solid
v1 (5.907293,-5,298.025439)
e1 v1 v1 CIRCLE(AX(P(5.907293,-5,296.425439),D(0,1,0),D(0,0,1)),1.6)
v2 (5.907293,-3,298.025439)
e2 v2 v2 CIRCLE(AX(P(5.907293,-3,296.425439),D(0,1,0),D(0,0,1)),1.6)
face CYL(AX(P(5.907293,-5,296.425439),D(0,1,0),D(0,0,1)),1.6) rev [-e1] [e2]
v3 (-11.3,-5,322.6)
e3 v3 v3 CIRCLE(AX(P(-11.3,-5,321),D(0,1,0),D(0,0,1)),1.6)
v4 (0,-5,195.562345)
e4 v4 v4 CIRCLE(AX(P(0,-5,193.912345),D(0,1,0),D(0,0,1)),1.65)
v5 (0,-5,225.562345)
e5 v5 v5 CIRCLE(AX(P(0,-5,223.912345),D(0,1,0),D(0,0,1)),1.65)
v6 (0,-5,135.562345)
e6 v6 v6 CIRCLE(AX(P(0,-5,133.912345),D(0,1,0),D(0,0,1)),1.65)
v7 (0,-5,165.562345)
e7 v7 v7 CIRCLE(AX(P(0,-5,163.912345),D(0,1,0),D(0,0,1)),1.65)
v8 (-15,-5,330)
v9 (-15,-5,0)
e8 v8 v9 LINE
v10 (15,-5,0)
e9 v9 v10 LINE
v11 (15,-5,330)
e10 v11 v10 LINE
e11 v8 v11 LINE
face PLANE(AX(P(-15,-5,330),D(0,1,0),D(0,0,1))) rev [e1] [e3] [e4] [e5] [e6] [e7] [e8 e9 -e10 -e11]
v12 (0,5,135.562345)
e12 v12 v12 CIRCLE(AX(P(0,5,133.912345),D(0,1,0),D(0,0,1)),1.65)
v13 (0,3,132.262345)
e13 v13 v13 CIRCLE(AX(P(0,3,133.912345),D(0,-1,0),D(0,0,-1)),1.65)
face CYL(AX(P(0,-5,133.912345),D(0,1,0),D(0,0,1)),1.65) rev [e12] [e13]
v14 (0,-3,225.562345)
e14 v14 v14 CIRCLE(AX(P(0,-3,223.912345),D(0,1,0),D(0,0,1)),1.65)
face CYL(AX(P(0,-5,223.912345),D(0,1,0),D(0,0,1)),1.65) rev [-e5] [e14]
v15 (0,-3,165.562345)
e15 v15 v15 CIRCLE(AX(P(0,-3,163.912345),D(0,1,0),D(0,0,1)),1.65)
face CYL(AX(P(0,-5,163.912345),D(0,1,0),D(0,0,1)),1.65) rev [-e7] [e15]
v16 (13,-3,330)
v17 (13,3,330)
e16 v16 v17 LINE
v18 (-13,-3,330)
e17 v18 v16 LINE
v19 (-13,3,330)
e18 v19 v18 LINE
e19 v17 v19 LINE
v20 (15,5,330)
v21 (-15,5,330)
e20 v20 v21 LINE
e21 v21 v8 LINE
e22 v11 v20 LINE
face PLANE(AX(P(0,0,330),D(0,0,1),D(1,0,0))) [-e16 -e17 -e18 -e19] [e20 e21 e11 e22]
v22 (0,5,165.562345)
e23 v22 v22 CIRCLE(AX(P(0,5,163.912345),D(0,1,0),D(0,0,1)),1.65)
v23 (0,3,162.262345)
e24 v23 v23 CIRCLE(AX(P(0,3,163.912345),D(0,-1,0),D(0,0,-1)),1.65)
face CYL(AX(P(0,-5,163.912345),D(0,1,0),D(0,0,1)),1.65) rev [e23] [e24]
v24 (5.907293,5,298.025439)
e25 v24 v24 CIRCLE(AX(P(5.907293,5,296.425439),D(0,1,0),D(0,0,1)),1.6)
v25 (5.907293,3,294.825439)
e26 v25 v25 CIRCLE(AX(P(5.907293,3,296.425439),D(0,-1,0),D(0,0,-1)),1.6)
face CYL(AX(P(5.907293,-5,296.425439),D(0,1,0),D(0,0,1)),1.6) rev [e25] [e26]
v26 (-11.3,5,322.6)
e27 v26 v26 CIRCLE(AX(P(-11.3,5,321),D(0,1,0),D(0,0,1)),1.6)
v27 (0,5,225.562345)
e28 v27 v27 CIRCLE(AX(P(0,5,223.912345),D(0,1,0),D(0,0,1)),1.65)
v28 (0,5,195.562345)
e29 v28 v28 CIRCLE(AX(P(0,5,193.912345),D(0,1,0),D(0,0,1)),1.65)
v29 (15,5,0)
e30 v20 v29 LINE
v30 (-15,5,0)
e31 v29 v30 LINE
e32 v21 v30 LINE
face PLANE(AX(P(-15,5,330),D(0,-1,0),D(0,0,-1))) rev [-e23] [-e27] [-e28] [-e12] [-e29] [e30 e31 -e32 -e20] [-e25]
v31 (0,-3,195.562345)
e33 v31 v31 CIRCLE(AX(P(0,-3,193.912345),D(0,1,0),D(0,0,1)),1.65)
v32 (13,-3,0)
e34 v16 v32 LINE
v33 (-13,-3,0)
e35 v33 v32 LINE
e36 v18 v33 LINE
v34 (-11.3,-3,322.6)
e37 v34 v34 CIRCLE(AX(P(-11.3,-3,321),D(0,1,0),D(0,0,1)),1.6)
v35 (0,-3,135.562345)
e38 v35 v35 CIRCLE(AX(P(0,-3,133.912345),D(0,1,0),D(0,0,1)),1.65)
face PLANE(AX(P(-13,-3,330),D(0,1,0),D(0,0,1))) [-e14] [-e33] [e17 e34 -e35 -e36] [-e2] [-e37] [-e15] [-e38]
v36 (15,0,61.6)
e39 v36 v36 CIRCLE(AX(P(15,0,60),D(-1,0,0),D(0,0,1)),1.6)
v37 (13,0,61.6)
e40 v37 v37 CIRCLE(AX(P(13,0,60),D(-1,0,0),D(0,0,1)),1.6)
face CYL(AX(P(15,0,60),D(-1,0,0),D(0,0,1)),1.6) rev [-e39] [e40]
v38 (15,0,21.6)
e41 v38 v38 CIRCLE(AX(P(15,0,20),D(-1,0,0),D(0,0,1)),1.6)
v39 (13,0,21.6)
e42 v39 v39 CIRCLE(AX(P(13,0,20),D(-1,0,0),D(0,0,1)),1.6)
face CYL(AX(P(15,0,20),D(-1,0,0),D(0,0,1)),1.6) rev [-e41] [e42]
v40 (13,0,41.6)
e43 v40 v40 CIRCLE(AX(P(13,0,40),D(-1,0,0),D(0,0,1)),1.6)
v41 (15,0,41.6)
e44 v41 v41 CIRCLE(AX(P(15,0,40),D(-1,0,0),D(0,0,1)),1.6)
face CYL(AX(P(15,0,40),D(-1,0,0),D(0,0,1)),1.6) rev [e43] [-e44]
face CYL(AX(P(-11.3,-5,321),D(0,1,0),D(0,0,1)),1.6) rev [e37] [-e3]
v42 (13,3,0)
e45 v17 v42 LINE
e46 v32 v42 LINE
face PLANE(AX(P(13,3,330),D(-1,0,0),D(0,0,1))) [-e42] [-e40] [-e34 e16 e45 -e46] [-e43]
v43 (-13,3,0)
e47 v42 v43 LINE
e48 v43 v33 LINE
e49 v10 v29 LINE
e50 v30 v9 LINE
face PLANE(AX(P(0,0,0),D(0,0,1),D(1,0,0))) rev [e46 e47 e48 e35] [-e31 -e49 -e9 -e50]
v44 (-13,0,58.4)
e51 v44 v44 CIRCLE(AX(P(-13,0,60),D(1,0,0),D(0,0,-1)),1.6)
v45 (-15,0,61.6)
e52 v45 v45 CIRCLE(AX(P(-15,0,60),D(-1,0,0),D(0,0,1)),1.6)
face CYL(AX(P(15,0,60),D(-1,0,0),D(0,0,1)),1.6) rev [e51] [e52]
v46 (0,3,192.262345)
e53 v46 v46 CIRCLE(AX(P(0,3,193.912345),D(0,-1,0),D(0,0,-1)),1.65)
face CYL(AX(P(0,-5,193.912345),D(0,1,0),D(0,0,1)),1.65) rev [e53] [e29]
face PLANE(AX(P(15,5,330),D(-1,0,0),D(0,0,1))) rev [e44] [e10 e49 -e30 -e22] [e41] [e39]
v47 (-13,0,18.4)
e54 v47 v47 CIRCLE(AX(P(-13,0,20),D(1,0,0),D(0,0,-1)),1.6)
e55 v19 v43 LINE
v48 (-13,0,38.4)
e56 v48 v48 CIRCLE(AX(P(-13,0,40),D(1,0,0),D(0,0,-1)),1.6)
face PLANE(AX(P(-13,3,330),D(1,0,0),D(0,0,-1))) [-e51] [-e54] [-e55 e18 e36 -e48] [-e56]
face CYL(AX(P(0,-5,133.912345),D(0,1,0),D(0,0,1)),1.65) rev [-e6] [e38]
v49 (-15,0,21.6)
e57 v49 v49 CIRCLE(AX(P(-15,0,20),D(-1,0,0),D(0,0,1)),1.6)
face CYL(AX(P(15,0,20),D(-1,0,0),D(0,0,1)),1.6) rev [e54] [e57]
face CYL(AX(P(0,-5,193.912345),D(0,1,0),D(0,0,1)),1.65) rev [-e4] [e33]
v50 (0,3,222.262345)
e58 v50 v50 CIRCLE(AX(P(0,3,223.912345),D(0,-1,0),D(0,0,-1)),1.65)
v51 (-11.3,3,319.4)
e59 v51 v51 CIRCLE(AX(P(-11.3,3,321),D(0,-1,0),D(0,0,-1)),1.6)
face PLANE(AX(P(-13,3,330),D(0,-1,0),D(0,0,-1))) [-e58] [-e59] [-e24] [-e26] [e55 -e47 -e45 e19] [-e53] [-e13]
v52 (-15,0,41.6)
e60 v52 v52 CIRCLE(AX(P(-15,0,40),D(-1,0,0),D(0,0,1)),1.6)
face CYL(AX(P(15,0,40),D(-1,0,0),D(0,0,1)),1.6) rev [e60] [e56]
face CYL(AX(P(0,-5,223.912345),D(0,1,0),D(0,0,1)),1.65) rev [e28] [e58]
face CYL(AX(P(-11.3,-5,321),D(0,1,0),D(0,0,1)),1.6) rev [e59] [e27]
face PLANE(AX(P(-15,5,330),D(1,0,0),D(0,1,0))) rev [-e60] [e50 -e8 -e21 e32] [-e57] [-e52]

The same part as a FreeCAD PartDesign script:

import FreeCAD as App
import Part
import Sketcher

V = App.Vector

doc = App.newDocument("Part")
body = doc.addObject("PartDesign::Body", "Body")

sketch1 = doc.addObject("Sketcher::SketchObject", "Sketch")
body.addObject(sketch1)
sketch1.AttachmentSupport = (doc.XY_Plane, [""])
sketch1.MapMode = "FlatFace"
sketch1.addGeometry([
    Part.LineSegment(V(-15, 5, 0), V(-15, -5, 0)),
    Part.LineSegment(V(-15, -5, 0), V(15, -5, 0)),
    Part.LineSegment(V(15, -5, 0), V(15, 5, 0)),
    Part.LineSegment(V(15, 5, 0), V(-15, 5, 0)),
    Part.LineSegment(V(13, -3, 0), V(-13, -3, 0)),
    Part.LineSegment(V(-13, -3, 0), V(-13, 3, 0)),
    Part.LineSegment(V(-13, 3, 0), V(13, 3, 0)),
    Part.LineSegment(V(13, 3, 0), V(13, -3, 0)),
], False)
sketch1.addConstraint([
    Sketcher.Constraint("Coincident", 0, 2, 1, 1),
    Sketcher.Constraint("Coincident", 1, 2, 2, 1),
    Sketcher.Constraint("Coincident", 2, 2, 3, 1),
    Sketcher.Constraint("Coincident", 3, 2, 0, 1),
    Sketcher.Constraint("Coincident", 4, 2, 5, 1),
    Sketcher.Constraint("Coincident", 5, 2, 6, 1),
    Sketcher.Constraint("Coincident", 6, 2, 7, 1),
    Sketcher.Constraint("Coincident", 7, 2, 4, 1),
    Sketcher.Constraint("Vertical", 0),
    Sketcher.Constraint("Horizontal", 1),
    Sketcher.Constraint("Vertical", 2),
    Sketcher.Constraint("Horizontal", 3),
    Sketcher.Constraint("Horizontal", 4),
    Sketcher.Constraint("Vertical", 5),
    Sketcher.Constraint("Horizontal", 6),
    Sketcher.Constraint("Vertical", 7),
    Sketcher.Constraint("Symmetric", 0, 2, 2, 2, -1, 1),
    Sketcher.Constraint("Symmetric", 4, 2, 6, 2, -1, 1),
    Sketcher.Constraint("DistanceX", 1, 1, 1, 2, 30.0),
    Sketcher.Constraint("DistanceX", 4, 2, 4, 1, 26.0),
    Sketcher.Constraint("DistanceY", 0, 2, 0, 1, 10.0),
    Sketcher.Constraint("DistanceY", 5, 1, 5, 2, 6.0),
])
pad1 = doc.addObject("PartDesign::Pad", "Pad")
body.addObject(pad1)
pad1.Profile = sketch1
pad1.Length = 330

sketch2 = doc.addObject("Sketcher::SketchObject", "Sketch001")
body.addObject(sketch2)
sketch2.AttachmentSupport = (doc.XZ_Plane, [""])
sketch2.MapMode = "FlatFace"
sketch2.AttachmentOffset = App.Placement(V(0, 0, -5), App.Rotation())
sketch2.addGeometry(Part.Circle(V(-11.3, 321, 0), V(0, 0, 1), 1.6), False)
sketch2.addConstraint([
    Sketcher.Constraint("Diameter", 0, 3.2),
    Sketcher.Constraint("DistanceY", -1, 1, 0, 3, 321.0),
    Sketcher.Constraint("DistanceX", 0, 3, -1, 1, 11.3),
])
pocket1 = doc.addObject("PartDesign::Pocket", "Pocket")
body.addObject(pocket1)
pocket1.Profile = sketch2
pocket1.Type = "ThroughAll"
pocket1.Reversed = True

sketch3 = doc.addObject("Sketcher::SketchObject", "Sketch002")
body.addObject(sketch3)
sketch3.AttachmentSupport = (doc.XZ_Plane, [""])
sketch3.MapMode = "FlatFace"
sketch3.AttachmentOffset = App.Placement(V(0, 0, -5), App.Rotation())
sketch3.addGeometry([
    Part.Circle(V(5.9, 296.4, 0), V(0, 0, 1), 1.6),
    Part.Circle(V(0, 163.9, 0), V(0, 0, 1), 1.6),
    Part.Circle(V(0, 133.9, 0), V(0, 0, 1), 1.6),
    Part.Circle(V(0, 223.9, 0), V(0, 0, 1), 1.6),
    Part.Circle(V(0, 193.9, 0), V(0, 0, 1), 1.6),
], False)
sketch3.addConstraint([
    Sketcher.Constraint("Equal", 1, 2),
    Sketcher.Constraint("Equal", 2, 3),
    Sketcher.Constraint("Equal", 3, 4),
    Sketcher.Constraint("PointOnObject", 1, 3, -2),
    Sketcher.Constraint("PointOnObject", 2, 3, -2),
    Sketcher.Constraint("PointOnObject", 3, 3, -2),
    Sketcher.Constraint("PointOnObject", 4, 3, -2),
    Sketcher.Constraint("Diameter", 0, 3.2),
    Sketcher.Constraint("Diameter", 1, 3.3),
    Sketcher.Constraint("DistanceY", 2, 3, 1, 3, 30.0),
    Sketcher.Constraint("DistanceY", 1, 3, 3, 3, 60.0),
    Sketcher.Constraint("DistanceY", 1, 3, 4, 3, 30.0),
    Sketcher.Constraint("DistanceY", -1, 1, 0, 3, 296.425439),
    Sketcher.Constraint("DistanceX", -1, 1, 0, 3, 5.907293),
    Sketcher.Constraint("DistanceY", -1, 1, 1, 3, 163.912345),
])
pocket2 = doc.addObject("PartDesign::Pocket", "Pocket001")
body.addObject(pocket2)
pocket2.Profile = sketch3
pocket2.Type = "ThroughAll"
pocket2.Reversed = True

sketch4 = doc.addObject("Sketcher::SketchObject", "Sketch003")
body.addObject(sketch4)
sketch4.AttachmentSupport = (doc.YZ_Plane, [""])
sketch4.MapMode = "FlatFace"
sketch4.AttachmentOffset = App.Placement(V(0, 0, -15), App.Rotation())
sketch4.addGeometry([
    Part.Circle(V(0, 20, 0), V(0, 0, 1), 1.6),
    Part.Circle(V(0, 40, 0), V(0, 0, 1), 1.6),
    Part.Circle(V(0, 60, 0), V(0, 0, 1), 1.6),
], False)
sketch4.addConstraint([
    Sketcher.Constraint("Equal", 0, 1),
    Sketcher.Constraint("Equal", 1, 2),
    Sketcher.Constraint("PointOnObject", 0, 3, -2),
    Sketcher.Constraint("PointOnObject", 1, 3, -2),
    Sketcher.Constraint("PointOnObject", 2, 3, -2),
    Sketcher.Constraint("Diameter", 0, 3.2),
    Sketcher.Constraint("DistanceY", -1, 1, 0, 3, 20.0),
    Sketcher.Constraint("DistanceY", -1, 1, 1, 3, 40.0),
    Sketcher.Constraint("DistanceY", -1, 1, 2, 3, 60.0),
])
pocket3 = doc.addObject("PartDesign::Pocket", "Pocket002")
body.addObject(pocket3)
pocket3.Profile = sketch4
pocket3.Type = "ThroughAll"
pocket3.Reversed = True

doc.recompute()
